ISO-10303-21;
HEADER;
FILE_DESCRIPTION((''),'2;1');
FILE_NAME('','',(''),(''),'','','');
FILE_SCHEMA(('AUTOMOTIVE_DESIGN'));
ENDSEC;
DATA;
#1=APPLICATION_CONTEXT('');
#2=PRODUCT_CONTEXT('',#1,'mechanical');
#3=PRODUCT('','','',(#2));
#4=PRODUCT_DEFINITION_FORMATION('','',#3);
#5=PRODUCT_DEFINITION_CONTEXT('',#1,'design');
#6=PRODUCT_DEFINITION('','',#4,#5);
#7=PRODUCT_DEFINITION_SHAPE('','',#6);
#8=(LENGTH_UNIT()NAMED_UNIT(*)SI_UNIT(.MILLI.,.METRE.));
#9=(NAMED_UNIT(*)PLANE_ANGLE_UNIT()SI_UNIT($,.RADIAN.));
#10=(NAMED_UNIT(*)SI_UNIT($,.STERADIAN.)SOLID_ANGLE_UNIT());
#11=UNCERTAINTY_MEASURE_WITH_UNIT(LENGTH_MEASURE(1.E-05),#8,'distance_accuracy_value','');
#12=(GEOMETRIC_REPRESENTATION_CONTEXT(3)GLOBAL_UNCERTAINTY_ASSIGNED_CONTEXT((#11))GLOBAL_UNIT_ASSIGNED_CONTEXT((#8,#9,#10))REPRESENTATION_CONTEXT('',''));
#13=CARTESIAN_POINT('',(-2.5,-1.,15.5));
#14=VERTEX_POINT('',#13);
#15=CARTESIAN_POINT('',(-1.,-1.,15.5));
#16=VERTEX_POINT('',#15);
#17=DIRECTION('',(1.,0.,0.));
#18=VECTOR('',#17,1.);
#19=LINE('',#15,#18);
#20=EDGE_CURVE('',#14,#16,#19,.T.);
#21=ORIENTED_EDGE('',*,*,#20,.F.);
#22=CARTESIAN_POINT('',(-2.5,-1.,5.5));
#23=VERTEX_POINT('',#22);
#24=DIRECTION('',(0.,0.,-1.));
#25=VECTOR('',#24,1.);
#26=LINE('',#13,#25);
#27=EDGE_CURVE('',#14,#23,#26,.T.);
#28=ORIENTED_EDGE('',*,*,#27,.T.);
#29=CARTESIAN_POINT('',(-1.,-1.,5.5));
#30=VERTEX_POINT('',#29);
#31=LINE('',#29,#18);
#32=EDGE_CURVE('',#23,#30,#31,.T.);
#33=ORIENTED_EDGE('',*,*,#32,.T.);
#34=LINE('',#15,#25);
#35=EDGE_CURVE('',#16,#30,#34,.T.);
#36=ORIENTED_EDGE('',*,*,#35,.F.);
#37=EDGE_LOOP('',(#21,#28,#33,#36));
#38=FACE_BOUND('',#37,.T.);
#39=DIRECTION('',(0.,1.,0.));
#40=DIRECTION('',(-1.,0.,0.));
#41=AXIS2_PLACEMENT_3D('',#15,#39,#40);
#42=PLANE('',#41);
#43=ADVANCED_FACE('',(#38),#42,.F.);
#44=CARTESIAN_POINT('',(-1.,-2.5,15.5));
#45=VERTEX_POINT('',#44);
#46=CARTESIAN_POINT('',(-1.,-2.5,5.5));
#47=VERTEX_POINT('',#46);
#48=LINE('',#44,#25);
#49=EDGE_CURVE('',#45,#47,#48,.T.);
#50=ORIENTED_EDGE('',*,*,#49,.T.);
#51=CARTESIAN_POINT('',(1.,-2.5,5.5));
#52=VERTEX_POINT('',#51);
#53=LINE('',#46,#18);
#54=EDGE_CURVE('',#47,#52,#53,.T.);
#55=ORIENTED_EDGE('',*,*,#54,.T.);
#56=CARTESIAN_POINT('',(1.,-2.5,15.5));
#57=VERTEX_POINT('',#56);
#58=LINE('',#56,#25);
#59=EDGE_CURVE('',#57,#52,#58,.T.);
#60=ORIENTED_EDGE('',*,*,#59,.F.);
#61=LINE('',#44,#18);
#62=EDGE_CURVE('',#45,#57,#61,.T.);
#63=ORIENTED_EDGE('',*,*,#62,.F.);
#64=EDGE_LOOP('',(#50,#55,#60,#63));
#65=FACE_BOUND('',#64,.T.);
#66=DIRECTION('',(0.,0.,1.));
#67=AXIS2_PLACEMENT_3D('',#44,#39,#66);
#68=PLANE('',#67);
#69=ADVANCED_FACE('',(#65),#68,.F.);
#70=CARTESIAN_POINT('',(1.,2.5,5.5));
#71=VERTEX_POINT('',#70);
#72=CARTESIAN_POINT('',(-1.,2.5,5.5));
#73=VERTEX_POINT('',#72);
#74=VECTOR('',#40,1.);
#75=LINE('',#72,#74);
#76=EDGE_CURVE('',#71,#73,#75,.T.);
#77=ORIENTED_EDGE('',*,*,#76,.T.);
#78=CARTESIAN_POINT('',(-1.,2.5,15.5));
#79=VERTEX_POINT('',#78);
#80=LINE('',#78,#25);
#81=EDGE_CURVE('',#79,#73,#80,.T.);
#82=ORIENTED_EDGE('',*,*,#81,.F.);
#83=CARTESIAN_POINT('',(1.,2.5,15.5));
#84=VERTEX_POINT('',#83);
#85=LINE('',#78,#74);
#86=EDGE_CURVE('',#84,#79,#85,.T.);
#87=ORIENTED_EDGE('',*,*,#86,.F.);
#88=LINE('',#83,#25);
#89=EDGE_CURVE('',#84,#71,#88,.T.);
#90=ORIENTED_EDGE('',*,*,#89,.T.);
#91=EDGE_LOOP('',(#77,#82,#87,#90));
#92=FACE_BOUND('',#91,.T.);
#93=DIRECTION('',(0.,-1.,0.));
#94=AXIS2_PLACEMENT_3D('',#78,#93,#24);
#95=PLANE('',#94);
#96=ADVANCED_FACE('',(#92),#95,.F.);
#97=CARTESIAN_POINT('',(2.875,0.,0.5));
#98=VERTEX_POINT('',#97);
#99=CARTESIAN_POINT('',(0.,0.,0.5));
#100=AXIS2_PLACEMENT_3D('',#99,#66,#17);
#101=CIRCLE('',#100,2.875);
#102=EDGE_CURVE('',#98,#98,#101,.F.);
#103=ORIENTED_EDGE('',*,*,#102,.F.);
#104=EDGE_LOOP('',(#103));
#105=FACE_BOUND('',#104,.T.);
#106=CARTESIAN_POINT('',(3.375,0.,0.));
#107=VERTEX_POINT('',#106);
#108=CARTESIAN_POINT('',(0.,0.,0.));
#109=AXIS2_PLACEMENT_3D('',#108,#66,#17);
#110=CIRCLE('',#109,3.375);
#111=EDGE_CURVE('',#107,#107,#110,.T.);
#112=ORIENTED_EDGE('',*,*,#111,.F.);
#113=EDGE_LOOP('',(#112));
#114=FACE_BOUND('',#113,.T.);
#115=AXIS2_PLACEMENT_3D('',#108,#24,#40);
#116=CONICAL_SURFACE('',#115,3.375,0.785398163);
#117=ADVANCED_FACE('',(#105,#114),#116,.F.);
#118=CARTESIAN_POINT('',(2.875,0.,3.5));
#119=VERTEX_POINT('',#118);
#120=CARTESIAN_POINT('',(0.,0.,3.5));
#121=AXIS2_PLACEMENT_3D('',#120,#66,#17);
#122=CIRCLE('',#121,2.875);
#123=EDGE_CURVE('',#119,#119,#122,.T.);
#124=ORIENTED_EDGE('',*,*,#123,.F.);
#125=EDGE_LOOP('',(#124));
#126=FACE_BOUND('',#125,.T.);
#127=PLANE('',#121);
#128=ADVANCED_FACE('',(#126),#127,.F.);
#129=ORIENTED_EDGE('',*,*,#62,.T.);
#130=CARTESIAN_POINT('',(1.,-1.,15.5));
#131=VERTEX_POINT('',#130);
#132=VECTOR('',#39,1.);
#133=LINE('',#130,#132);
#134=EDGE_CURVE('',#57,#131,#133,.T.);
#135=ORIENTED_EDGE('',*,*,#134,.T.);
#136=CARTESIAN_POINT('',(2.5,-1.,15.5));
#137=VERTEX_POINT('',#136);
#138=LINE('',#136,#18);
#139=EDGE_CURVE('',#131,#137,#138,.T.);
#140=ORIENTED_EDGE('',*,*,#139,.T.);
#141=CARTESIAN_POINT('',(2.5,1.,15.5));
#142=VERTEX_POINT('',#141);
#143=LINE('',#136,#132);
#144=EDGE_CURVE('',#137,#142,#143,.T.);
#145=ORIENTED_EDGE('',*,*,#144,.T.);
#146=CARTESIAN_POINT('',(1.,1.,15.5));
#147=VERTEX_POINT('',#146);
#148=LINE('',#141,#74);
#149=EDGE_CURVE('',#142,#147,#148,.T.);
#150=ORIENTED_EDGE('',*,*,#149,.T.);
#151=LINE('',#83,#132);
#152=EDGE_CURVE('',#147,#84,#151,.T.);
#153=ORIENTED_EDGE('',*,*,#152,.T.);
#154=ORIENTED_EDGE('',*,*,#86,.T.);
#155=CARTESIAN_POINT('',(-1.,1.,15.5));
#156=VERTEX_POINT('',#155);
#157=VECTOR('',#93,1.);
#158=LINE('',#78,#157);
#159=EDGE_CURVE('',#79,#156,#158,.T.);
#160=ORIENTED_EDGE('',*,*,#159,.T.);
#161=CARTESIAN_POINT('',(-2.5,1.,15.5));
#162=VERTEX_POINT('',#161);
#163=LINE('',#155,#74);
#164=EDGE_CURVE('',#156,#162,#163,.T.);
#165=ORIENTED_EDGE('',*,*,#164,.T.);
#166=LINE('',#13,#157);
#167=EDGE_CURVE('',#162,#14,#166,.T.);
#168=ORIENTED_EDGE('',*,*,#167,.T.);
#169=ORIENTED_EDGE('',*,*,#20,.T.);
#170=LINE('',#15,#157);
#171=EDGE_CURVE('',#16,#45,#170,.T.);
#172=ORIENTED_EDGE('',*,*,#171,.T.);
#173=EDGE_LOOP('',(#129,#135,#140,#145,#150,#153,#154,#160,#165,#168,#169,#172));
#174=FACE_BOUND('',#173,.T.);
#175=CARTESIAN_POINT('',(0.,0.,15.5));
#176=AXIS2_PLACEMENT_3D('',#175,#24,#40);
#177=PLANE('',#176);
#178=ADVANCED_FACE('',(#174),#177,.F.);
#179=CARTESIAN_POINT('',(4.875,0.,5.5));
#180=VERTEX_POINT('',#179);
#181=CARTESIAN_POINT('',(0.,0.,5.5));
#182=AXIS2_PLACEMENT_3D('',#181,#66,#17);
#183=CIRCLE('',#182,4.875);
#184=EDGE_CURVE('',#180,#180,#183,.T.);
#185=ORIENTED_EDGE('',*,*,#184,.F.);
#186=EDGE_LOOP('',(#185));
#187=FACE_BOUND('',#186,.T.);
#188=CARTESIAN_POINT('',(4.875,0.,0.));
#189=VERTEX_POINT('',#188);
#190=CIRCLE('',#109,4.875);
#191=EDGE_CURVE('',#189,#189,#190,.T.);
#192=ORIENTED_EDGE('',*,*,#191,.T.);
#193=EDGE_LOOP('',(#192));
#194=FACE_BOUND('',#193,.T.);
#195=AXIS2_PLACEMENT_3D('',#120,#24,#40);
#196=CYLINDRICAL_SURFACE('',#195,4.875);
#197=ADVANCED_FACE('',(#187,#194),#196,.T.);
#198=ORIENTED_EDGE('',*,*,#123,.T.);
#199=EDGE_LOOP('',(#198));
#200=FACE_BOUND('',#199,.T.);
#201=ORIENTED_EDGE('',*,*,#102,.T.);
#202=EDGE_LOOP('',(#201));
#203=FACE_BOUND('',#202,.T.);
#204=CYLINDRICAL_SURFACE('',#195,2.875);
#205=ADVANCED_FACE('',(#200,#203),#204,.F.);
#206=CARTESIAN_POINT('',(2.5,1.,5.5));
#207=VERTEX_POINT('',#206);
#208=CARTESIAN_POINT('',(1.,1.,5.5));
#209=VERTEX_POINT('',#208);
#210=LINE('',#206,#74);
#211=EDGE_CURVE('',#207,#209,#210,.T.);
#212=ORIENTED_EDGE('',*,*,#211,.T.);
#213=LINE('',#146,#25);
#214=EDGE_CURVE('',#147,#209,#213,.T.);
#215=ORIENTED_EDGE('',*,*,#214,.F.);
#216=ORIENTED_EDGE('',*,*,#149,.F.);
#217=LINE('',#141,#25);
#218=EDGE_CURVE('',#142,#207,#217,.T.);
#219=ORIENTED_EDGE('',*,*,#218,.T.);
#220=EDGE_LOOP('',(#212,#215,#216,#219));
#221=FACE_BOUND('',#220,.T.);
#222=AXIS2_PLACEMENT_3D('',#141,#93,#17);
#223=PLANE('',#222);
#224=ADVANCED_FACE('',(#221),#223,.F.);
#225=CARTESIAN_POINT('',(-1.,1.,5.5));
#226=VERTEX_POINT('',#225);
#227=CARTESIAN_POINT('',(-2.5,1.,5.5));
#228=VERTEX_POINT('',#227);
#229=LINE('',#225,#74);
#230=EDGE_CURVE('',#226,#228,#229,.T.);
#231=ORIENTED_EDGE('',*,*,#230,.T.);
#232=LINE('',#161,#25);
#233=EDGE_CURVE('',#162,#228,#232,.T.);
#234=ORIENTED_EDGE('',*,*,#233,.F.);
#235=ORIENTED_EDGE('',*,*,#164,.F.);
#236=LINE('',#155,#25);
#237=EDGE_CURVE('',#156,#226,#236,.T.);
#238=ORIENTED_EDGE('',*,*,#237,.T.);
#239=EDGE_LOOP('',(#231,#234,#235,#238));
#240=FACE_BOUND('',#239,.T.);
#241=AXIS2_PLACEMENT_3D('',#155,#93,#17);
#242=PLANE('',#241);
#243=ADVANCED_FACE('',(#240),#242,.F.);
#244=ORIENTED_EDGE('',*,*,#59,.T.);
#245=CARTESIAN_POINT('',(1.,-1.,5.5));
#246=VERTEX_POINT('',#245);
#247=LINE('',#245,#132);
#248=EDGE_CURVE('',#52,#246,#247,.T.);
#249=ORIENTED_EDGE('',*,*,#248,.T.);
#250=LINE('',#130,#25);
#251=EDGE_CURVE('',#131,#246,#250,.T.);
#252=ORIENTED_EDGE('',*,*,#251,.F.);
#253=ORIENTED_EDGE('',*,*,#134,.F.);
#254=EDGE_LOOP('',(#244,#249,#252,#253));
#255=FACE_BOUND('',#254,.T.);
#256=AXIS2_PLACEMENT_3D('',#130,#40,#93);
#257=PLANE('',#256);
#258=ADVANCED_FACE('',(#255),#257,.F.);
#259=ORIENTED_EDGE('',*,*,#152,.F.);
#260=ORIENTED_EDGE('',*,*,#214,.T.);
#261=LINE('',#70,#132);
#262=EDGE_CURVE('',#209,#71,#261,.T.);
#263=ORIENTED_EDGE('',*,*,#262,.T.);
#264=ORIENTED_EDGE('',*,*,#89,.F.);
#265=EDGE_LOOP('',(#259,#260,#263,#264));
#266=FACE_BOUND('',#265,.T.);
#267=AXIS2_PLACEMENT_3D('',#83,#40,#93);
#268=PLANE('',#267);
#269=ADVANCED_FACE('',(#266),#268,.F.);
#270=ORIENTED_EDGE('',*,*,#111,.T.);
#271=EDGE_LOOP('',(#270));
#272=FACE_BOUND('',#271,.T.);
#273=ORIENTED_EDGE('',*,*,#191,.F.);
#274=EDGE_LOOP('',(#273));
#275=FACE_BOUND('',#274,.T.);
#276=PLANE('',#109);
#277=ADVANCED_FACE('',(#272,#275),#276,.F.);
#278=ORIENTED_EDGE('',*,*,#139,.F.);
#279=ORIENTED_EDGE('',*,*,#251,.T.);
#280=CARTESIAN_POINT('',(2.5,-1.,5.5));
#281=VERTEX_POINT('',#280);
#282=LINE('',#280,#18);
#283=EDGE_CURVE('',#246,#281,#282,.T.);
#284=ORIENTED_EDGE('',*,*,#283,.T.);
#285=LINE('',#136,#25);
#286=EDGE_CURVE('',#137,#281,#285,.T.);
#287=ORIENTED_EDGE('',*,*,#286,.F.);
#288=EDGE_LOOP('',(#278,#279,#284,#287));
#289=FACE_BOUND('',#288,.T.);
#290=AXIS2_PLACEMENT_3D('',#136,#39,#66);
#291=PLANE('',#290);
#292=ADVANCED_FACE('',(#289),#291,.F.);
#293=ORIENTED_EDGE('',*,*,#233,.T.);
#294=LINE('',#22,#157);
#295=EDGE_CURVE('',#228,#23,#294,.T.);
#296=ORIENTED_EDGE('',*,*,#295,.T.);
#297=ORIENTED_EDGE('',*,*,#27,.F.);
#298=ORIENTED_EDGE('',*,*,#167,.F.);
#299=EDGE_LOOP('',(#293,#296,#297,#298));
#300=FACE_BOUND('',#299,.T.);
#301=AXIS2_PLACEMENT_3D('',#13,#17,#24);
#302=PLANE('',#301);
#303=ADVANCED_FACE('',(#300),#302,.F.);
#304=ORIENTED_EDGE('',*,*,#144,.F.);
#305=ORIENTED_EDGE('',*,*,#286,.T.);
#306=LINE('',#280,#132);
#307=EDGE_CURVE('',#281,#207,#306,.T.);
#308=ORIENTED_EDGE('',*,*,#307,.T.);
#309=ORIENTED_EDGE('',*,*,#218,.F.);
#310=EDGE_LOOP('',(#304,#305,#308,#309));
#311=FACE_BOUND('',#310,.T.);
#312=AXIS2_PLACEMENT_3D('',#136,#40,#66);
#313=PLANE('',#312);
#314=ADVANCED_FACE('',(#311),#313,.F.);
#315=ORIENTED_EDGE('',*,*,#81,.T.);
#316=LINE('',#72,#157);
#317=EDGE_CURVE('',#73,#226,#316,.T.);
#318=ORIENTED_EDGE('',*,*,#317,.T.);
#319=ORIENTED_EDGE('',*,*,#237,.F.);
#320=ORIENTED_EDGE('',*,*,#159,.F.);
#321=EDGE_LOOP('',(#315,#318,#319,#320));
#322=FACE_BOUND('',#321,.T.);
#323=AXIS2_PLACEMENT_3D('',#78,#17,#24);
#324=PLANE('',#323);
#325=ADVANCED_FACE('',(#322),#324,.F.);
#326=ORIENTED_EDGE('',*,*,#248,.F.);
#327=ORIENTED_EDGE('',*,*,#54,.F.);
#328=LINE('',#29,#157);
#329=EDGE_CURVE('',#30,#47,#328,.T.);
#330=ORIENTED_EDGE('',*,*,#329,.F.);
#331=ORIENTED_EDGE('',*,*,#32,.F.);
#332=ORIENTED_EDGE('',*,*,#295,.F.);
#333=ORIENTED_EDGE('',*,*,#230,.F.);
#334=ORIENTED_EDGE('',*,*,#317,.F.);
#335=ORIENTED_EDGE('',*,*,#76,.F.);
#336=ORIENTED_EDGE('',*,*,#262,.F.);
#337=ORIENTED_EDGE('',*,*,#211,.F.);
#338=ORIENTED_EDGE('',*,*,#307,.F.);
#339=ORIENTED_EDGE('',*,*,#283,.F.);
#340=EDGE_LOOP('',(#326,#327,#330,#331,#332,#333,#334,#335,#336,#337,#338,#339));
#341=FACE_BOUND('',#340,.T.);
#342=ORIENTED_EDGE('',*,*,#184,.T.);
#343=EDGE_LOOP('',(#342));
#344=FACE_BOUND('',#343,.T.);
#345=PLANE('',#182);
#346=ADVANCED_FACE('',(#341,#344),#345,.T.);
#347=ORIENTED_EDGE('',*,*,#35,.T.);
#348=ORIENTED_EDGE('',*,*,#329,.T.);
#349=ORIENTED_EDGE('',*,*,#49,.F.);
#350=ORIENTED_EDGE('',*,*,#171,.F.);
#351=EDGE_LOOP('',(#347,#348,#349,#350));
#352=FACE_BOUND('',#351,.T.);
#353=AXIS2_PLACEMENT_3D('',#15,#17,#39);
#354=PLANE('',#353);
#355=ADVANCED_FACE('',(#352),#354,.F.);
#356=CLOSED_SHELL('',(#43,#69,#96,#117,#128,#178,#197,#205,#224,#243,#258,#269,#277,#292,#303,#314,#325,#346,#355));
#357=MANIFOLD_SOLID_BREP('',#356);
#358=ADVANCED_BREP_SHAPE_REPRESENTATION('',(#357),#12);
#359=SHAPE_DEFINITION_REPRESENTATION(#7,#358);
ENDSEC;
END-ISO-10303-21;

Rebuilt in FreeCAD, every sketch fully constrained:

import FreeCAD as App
import Part
import Sketcher
Q = App.Units.Quantity


def edges_at(feature, points):
    """Names of the edges that pass closest to the given points."""
    edges = feature.Shape.Edges
    near = lambda p: min(range(len(edges)), key=lambda i: edges[i].distToShape(Part.Vertex(*p))[0])
    return sorted({f"Edge{near(p) + 1}" for p in points})


def add_polygon(sketch, points):
    """Adds a closed chain of lines whose ends are joined by coincident constraints."""
    first, n = sketch.GeometryCount, len(points)
    for a, b in zip(points, points[1:] + points[:1]):
        sketch.addGeometry(Part.LineSegment(App.Vector(*a, 0), App.Vector(*b, 0)), False)
    for i in range(n):
        sketch.addConstraint(Sketcher.Constraint("Coincident", first + i, 2, first + (i + 1) % n, 1))

doc = App.newDocument("Part")
body = doc.addObject("PartDesign::Body", "Body")

sketch1 = body.newObject("Sketcher::SketchObject", "Sketch")
sketch1.AttachmentSupport = (doc.getObject("XY_Plane"), [""])
sketch1.MapMode = "FlatFace"
sketch1.addGeometry([
    Part.Circle(App.Vector(0, 0, 0), App.Vector(0, 0, 1), 4.875),
    Part.Circle(App.Vector(0, 0, 0), App.Vector(0, 0, 1), 2.875),
], False)
sketch1.addConstraint([
    Sketcher.Constraint("Coincident", 0, 3, -1, 1),
    Sketcher.Constraint("Coincident", 1, 3, -1, 1),
    Sketcher.Constraint("Diameter", 0, Q("9.75 mm")),
    Sketcher.Constraint("Diameter", 1, Q("5.75 mm")),
])
pad1 = body.newObject("PartDesign::Pad", "Pad")
pad1.Profile = sketch1
pad1.Length = 3.5

sketch2 = body.newObject("Sketcher::SketchObject", "Sketch001")
sketch2.AttachmentSupport = (doc.getObject("XY_Plane"), [""])
sketch2.MapMode = "FlatFace"
sketch2.AttachmentOffset = App.Placement(App.Vector(0, 0, 3.5), App.Rotation())
sketch2.addGeometry(Part.Circle(App.Vector(0, 0, 0), App.Vector(0, 0, 1), 4.875), False)
sketch2.addConstraint([
    Sketcher.Constraint("Coincident", 0, 3, -1, 1),
    Sketcher.Constraint("Diameter", 0, Q("9.75 mm")),
])
pad2 = body.newObject("PartDesign::Pad", "Pad001")
pad2.Profile = sketch2
pad2.Length = 2
doc.recompute()

chamfer = body.newObject("PartDesign::Chamfer", "Chamfer")
chamfer.Base = (pad2, edges_at(pad2, [(-2.875, 0, 0)]))
chamfer.Size = 0.5

sketch3 = body.newObject("Sketcher::SketchObject", "Sketch002")
sketch3.AttachmentSupport = (doc.getObject("XY_Plane"), [""])
sketch3.MapMode = "FlatFace"
sketch3.AttachmentOffset = App.Placement(App.Vector(0, 0, 5.5), App.Rotation())
add_polygon(sketch3, [(1, 2.5), (-1, 2.5), (-1, 1), (-2.5, 1), (-2.5, -1), (-1, -1), (-1, -2.5), (1, -2.5), (1, -1), (2.5, -1), (2.5, 1), (1, 1)])
sketch3.addConstraint([
    Sketcher.Constraint("Horizontal", 0),
    Sketcher.Constraint("Vertical", 1),
    Sketcher.Constraint("Horizontal", 2),
    Sketcher.Constraint("Vertical", 3),
    Sketcher.Constraint("Horizontal", 4),
    Sketcher.Constraint("Vertical", 5),
    Sketcher.Constraint("Horizontal", 6),
    Sketcher.Constraint("Vertical", 7),
    Sketcher.Constraint("Horizontal", 8),
    Sketcher.Constraint("Vertical", 9),
    Sketcher.Constraint("Horizontal", 10),
    Sketcher.Constraint("Vertical", 11),
    Sketcher.Constraint("Symmetric", 0, 2, 6, 2, -1, 1),
    Sketcher.Constraint("Symmetric", 2, 2, 8, 2, -1, 1),
    Sketcher.Constraint("Symmetric", 4, 2, 10, 2, -1, 1),
    Sketcher.Constraint("Symmetric", 4, 2, 7, 2, -2),
    Sketcher.Constraint("Equal", 10, 1),
    Sketcher.Constraint("Equal", 6, 3),
    Sketcher.Constraint("DistanceX", 0, 2, 0, 1, Q("2 mm")),
    Sketcher.Constraint("DistanceX", 2, 2, 2, 1, Q("1.5 mm")),
])
pad3 = body.newObject("PartDesign::Pad", "Pad002")
pad3.Profile = sketch3
pad3.Length = 10

doc.recompute()
